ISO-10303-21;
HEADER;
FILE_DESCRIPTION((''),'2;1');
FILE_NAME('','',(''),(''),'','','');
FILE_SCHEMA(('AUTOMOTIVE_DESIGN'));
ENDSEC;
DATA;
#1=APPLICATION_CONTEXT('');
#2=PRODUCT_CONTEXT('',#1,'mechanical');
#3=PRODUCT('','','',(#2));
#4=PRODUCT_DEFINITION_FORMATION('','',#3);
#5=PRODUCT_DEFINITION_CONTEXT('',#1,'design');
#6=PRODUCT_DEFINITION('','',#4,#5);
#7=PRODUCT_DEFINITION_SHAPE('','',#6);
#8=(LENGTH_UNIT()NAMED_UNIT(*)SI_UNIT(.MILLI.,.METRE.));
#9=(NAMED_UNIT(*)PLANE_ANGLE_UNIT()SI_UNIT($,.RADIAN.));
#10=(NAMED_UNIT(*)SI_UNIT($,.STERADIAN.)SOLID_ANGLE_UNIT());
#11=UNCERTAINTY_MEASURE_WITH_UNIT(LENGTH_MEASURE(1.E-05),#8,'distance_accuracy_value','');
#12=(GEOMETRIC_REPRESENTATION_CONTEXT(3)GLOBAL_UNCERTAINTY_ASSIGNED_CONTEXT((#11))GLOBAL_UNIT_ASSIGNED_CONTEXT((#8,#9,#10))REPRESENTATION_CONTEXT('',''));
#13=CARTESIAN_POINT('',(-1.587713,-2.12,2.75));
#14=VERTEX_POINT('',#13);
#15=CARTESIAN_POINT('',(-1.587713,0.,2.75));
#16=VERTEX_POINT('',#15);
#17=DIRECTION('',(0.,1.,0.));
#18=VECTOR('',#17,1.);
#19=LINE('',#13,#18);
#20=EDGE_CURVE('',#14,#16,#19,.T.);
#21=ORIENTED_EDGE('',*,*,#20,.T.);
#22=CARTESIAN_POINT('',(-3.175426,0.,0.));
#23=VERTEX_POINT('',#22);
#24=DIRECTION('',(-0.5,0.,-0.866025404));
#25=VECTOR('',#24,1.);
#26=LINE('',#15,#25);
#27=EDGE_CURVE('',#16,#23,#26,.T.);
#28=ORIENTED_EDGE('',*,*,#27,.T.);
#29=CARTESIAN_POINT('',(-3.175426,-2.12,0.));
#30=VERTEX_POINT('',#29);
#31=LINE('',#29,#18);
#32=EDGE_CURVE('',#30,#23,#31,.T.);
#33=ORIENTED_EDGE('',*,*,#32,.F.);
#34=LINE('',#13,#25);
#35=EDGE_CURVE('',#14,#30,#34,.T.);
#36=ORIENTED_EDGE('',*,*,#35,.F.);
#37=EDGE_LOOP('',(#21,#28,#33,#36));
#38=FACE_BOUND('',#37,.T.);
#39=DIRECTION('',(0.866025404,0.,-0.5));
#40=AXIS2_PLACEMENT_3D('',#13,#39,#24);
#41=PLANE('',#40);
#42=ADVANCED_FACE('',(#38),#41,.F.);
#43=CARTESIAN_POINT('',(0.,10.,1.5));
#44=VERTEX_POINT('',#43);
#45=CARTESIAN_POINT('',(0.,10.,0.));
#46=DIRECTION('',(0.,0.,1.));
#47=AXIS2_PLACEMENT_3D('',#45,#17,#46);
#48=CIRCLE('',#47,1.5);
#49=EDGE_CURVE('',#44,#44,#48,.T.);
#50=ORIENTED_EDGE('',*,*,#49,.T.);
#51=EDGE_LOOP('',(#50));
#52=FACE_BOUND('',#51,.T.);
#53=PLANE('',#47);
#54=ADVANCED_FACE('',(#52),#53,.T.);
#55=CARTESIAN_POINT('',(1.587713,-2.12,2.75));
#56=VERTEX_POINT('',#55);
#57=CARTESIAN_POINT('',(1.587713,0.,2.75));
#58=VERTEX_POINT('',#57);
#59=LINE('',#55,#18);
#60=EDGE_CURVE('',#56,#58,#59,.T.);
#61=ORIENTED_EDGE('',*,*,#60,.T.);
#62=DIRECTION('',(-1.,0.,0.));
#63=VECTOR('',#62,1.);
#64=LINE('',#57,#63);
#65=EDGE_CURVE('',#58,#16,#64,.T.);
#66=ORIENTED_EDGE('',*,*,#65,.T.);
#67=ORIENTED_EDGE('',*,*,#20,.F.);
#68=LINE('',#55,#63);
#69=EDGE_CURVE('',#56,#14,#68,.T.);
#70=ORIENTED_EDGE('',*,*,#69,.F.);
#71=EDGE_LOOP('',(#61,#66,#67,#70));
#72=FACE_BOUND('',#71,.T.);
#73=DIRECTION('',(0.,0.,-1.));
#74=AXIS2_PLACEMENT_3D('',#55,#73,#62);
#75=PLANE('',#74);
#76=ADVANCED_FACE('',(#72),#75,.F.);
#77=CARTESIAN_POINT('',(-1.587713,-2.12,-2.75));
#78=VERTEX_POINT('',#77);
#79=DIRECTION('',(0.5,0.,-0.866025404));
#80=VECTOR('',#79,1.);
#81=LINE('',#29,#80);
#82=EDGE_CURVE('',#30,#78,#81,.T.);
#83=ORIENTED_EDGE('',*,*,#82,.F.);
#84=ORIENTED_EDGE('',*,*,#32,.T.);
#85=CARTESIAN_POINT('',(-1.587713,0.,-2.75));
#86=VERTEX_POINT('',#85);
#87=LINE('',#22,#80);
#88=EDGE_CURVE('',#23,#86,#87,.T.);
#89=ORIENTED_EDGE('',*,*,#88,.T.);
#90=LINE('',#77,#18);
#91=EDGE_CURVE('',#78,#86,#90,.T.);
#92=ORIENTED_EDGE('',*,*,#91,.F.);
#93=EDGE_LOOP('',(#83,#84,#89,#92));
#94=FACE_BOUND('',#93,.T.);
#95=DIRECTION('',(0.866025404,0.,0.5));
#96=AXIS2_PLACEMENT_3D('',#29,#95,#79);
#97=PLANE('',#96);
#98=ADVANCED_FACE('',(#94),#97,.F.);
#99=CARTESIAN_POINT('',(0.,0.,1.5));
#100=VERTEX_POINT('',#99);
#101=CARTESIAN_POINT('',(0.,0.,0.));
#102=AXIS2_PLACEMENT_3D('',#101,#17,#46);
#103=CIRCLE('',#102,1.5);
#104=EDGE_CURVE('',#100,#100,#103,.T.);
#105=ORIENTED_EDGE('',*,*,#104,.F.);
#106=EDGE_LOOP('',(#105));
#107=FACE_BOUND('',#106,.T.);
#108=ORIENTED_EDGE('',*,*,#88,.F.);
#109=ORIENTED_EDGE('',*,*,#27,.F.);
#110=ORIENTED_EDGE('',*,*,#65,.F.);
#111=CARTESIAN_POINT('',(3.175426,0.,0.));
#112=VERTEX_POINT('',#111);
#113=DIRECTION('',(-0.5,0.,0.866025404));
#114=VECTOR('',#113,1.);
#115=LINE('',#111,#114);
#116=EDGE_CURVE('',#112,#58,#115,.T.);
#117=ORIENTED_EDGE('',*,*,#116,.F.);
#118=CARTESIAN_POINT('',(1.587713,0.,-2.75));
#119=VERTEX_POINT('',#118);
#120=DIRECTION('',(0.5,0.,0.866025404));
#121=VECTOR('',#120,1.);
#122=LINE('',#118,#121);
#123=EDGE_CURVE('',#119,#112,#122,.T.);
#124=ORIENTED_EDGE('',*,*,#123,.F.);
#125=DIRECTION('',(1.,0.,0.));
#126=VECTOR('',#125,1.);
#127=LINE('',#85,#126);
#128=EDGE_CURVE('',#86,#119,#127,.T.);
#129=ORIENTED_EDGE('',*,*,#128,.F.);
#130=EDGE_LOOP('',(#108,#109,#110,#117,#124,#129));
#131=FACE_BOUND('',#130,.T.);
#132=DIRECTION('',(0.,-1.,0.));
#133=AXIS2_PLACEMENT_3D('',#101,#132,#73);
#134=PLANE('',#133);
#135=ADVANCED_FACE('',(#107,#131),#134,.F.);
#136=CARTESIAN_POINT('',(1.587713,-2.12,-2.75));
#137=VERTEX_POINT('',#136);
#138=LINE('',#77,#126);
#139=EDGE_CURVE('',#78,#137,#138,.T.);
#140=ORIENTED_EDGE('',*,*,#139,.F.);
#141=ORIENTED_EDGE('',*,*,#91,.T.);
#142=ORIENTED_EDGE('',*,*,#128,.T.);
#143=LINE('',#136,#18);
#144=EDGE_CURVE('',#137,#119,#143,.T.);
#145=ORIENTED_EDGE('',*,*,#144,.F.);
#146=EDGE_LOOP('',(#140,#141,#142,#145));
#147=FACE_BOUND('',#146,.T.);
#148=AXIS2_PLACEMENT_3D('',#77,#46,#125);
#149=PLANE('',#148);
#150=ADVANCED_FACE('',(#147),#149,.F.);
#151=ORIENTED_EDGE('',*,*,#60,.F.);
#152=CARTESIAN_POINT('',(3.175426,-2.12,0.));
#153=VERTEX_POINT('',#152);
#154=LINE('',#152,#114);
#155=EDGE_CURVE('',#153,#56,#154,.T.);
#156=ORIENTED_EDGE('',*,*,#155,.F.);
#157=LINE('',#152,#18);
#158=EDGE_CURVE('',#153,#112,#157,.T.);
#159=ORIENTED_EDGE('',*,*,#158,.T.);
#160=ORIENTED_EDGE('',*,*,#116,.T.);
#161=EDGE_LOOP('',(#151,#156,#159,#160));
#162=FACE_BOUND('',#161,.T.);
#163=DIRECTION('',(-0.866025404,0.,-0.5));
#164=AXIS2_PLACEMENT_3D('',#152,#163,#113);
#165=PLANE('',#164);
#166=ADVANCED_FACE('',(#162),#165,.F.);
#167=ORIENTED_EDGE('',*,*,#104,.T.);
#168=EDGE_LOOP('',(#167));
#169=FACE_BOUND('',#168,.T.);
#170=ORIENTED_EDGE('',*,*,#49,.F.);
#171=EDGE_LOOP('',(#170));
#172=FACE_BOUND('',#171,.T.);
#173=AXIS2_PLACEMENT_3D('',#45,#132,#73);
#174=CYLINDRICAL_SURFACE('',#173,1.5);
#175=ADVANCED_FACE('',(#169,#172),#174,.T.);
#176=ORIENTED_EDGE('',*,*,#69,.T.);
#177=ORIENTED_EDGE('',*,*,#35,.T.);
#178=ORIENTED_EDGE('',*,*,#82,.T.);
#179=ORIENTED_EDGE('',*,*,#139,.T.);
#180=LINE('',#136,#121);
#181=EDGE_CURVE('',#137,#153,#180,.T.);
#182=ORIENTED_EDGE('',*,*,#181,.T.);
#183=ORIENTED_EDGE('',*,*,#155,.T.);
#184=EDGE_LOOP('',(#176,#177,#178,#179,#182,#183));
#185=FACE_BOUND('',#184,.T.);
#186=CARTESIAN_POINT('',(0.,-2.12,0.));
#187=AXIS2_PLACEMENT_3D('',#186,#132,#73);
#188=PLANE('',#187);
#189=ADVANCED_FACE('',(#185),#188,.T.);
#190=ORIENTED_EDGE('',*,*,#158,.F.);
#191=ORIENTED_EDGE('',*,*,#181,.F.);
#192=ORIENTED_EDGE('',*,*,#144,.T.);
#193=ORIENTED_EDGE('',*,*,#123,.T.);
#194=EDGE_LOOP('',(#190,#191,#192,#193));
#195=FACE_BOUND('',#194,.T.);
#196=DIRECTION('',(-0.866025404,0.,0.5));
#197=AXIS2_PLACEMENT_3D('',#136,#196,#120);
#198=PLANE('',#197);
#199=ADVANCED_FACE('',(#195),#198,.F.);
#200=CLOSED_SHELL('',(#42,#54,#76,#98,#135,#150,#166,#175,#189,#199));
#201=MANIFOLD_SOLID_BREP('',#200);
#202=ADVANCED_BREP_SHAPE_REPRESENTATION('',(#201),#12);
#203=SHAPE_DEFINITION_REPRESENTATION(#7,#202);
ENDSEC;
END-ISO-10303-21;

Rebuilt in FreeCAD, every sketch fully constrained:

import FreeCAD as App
import Part
import Sketcher
from FreeCAD import Vector
Q = App.Units.Quantity

doc = App.newDocument("Part")
body = doc.addObject("PartDesign::Body", "Body")

# Sketch on XZ plane
sketch1 = doc.addObject("Sketcher::SketchObject", "Sketch")
body.addObject(sketch1)
sketch1.AttachmentSupport = (doc.XZ_Plane, [""])
sketch1.MapMode = "FlatFace"
sketch1.addGeometry(Part.Circle(Vector(0, 0, 0), Vector(0, 0, 1), 1.5), False)
sketch1.addConstraint([
    Sketcher.Constraint("Coincident", 0, 3, -1, 1),
    Sketcher.Constraint("Diameter", 0, 3.0),
])
pad1 = doc.addObject("PartDesign::Pad", "Pad")
body.addObject(pad1)
pad1.Profile = sketch1
pad1.Length = 10
pad1.Reversed = True

# Sketch on XZ plane
sketch2 = doc.addObject("Sketcher::SketchObject", "Sketch001")
body.addObject(sketch2)
sketch2.AttachmentSupport = (doc.XZ_Plane, [""])
sketch2.MapMode = "FlatFace"
sketch2.addGeometry([
    Part.LineSegment(Vector(3.2, 0, 0), Vector(1.6, 2.8, 0)),  # 0
    Part.LineSegment(Vector(1.6, 2.8, 0), Vector(-1.6, 2.8, 0)),  # 1
    Part.LineSegment(Vector(-1.6, 2.8, 0), Vector(-3.2, 0, 0)),  # 2
    Part.LineSegment(Vector(-3.2, 0, 0), Vector(-1.6, -2.8, 0)),  # 3
    Part.LineSegment(Vector(-1.6, -2.8, 0), Vector(1.6, -2.8, 0)),  # 4
    Part.LineSegment(Vector(1.6, -2.8, 0), Vector(3.2, 0, 0)),  # 5
], False)
sketch2.addConstraint([
    Sketcher.Constraint("Coincident", 0, 2, 1, 1),
    Sketcher.Constraint("Coincident", 1, 2, 2, 1),
    Sketcher.Constraint("Coincident", 2, 2, 3, 1),
    Sketcher.Constraint("Coincident", 3, 2, 4, 1),
    Sketcher.Constraint("Coincident", 4, 2, 5, 1),
    Sketcher.Constraint("Coincident", 5, 2, 0, 1),
    Sketcher.Constraint("Horizontal", 1),
    Sketcher.Constraint("Horizontal", 4),
    Sketcher.Constraint("Symmetric", 0, 2, 3, 2, -1, 1),
    Sketcher.Constraint("Symmetric", 2, 2, 5, 2, -1, 1),
    Sketcher.Constraint("PointOnObject", 2, 2, -1),
    Sketcher.Constraint("Parallel", 2, 5),
    Sketcher.Constraint("Vertical", 1, 2, 3, 2),
    Sketcher.Constraint("Angle", 0, Q("120 deg")),
    Sketcher.Constraint("DistanceY", 3, 2, 1, 2, 5.5),
    Sketcher.Constraint("DistanceX", 1, 2, 1, 1, 3.175426),
])
pad2 = doc.addObject("PartDesign::Pad", "Pad001")
body.addObject(pad2)
pad2.Profile = sketch2
pad2.Length = 2.12

doc.recompute()
